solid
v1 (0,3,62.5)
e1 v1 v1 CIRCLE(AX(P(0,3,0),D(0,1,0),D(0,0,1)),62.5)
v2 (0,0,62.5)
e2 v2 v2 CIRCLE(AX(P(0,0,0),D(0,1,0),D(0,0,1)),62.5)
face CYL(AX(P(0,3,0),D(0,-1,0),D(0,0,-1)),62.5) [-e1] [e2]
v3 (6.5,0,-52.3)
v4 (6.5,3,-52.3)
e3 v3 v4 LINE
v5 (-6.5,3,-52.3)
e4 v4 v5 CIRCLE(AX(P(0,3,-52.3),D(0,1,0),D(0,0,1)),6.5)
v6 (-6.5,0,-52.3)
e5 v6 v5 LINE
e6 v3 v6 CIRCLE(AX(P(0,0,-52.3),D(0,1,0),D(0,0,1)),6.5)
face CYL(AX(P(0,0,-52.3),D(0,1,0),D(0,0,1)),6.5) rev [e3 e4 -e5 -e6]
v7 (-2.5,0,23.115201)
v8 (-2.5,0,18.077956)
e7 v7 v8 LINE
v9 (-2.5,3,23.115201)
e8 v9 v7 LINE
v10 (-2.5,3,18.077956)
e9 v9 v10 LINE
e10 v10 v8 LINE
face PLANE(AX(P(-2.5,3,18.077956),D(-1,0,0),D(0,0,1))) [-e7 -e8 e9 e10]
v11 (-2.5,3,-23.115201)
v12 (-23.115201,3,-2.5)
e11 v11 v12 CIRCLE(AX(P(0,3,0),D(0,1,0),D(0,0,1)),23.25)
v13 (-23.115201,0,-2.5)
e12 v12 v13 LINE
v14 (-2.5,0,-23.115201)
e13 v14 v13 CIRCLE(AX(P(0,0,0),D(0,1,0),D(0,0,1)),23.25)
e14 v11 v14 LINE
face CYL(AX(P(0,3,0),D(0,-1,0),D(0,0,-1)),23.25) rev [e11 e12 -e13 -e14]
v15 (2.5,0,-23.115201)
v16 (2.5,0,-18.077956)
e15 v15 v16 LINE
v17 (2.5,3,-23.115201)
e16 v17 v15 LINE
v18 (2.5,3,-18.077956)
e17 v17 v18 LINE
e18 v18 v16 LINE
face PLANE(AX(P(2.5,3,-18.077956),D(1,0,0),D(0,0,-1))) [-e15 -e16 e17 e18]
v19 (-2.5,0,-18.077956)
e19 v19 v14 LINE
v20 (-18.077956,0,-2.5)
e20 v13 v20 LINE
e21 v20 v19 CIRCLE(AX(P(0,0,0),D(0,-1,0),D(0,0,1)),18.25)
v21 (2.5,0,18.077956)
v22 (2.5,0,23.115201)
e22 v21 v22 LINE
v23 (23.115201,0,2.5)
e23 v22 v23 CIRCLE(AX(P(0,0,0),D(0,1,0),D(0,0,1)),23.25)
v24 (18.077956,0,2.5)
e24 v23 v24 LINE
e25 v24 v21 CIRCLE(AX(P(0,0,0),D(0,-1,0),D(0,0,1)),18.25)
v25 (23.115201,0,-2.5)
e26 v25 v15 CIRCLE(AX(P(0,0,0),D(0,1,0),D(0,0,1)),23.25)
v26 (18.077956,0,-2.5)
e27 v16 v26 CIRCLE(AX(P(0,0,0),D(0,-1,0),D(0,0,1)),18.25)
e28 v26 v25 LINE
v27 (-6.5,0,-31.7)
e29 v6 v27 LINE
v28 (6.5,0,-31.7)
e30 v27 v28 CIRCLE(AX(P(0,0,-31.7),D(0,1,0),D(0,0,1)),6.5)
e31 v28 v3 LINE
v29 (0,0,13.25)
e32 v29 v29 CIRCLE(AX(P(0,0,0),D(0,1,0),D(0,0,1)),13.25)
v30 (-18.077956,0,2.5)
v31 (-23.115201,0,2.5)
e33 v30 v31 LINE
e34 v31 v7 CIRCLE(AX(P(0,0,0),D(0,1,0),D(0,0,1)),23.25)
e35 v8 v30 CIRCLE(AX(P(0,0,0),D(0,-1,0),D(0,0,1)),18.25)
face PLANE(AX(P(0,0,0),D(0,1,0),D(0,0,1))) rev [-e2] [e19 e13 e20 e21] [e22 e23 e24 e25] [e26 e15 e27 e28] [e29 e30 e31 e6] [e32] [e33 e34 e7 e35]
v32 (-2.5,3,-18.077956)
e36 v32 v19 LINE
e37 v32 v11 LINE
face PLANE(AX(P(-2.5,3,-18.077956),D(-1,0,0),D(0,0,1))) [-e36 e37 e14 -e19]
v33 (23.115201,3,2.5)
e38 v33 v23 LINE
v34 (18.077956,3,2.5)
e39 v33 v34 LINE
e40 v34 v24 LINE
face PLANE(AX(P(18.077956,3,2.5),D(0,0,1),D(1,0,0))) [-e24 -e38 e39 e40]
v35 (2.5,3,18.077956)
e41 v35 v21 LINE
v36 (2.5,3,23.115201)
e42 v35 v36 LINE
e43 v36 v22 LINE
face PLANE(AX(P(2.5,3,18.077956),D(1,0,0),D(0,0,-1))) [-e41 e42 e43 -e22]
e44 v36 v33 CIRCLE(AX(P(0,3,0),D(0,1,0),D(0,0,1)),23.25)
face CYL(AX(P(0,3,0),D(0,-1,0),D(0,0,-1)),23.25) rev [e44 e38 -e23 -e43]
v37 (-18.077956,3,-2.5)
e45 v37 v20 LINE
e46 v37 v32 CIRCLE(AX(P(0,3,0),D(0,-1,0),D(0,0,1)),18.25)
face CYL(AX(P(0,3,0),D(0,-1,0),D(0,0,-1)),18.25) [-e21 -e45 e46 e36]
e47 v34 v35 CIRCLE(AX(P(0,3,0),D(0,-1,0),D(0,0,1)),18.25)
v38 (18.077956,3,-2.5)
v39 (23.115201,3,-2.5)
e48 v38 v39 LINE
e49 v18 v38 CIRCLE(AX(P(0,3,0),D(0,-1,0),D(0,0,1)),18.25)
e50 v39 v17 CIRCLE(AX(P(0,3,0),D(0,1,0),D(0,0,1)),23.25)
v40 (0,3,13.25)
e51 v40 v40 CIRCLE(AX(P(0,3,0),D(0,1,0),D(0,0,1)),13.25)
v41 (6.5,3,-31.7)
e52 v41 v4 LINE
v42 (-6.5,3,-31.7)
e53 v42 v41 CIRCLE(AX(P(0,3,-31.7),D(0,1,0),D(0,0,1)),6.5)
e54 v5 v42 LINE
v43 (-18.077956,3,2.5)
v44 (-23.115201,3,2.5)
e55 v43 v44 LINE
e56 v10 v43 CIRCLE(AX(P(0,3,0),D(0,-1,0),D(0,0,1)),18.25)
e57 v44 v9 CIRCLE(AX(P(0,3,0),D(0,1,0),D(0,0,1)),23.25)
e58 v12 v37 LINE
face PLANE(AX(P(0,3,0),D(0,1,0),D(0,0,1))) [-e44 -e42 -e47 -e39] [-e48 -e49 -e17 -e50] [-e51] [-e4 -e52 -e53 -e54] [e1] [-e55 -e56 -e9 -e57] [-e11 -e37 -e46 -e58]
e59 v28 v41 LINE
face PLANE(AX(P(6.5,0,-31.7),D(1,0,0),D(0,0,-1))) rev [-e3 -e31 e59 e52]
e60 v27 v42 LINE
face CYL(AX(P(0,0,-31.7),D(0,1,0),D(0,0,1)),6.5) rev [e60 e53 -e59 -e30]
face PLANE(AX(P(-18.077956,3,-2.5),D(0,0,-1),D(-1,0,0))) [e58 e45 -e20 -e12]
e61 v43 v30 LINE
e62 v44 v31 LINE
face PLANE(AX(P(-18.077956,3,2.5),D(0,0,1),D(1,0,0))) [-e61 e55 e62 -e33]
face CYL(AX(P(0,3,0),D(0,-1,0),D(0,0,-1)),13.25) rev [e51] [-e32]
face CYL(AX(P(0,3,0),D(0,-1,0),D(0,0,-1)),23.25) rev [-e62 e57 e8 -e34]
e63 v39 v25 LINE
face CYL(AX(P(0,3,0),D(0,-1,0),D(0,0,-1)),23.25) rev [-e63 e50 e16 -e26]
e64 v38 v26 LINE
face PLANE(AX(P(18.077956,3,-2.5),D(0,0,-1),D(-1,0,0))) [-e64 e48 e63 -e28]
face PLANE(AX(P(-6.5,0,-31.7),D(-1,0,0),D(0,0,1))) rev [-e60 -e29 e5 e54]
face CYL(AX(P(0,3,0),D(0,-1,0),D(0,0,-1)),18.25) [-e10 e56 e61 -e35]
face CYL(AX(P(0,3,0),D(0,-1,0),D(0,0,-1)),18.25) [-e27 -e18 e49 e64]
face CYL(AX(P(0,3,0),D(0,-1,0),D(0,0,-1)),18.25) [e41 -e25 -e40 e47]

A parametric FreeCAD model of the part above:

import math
import FreeCAD as App
import Part
import Sketcher

doc = App.newDocument("Part")
body = doc.addObject("PartDesign::Body", "Body")

sketch1 = body.newObject("Sketcher::SketchObject", "Sketch")
sketch1.AttachmentSupport = (doc.getObject("XZ_Plane"), [""])
sketch1.MapMode = "FlatFace"
sketch1.addGeometry([
    Part.Circle(App.Vector(0, 0, 0), App.Vector(0, 0, 1), 62.5),
    Part.LineSegment(App.Vector(-2.5, -23.115201, 0), App.Vector(-2.5, -18.077956, 0)),
    Part.ArcOfCircle(Part.Circle(App.Vector(0, 0, 0), App.Vector(0, 0, 1), 18.25), math.radians(-172.126506), math.radians(-97.873494)),
    Part.LineSegment(App.Vector(-18.077956, -2.5, 0), App.Vector(-23.115201, -2.5, 0)),
    Part.ArcOfCircle(Part.Circle(App.Vector(0, 0, 0), App.Vector(0, 0, 1), 23.25), math.radians(-173.827229), math.radians(-96.172771)),
    Part.ArcOfCircle(Part.Circle(App.Vector(0, 0, 0), App.Vector(0, 0, 1), 18.25), math.radians(97.873494), math.radians(172.126506)),
    Part.LineSegment(App.Vector(-2.5, 18.077956, 0), App.Vector(-2.5, 23.115201, 0)),
    Part.ArcOfCircle(Part.Circle(App.Vector(0, 0, 0), App.Vector(0, 0, 1), 23.25), math.radians(96.172771), math.radians(173.827229)),
    Part.LineSegment(App.Vector(-23.115201, 2.5, 0), App.Vector(-18.077956, 2.5, 0)),
    Part.ArcOfCircle(Part.Circle(App.Vector(0, 0, 0), App.Vector(0, 0, 1), 18.25), math.radians(-82.126506), math.radians(-7.873494)),
    Part.LineSegment(App.Vector(2.5, -18.077956, 0), App.Vector(2.5, -23.115201, 0)),
    Part.ArcOfCircle(Part.Circle(App.Vector(0, 0, 0), App.Vector(0, 0, 1), 23.25), math.radians(-83.827229), math.radians(-6.172771)),
    Part.LineSegment(App.Vector(23.115201, -2.5, 0), App.Vector(18.077956, -2.5, 0)),
    Part.Circle(App.Vector(0, 0, 0), App.Vector(0, 0, 1), 13.25),
    Part.ArcOfCircle(Part.Circle(App.Vector(0, 0, 0), App.Vector(0, 0, 1), 18.25), math.radians(7.873494), math.radians(82.126506)),
    Part.LineSegment(App.Vector(18.077956, 2.5, 0), App.Vector(23.115201, 2.5, 0)),
    Part.ArcOfCircle(Part.Circle(App.Vector(0, 0, 0), App.Vector(0, 0, 1), 23.25), math.radians(6.172771), math.radians(83.827229)),
    Part.LineSegment(App.Vector(2.5, 23.115201, 0), App.Vector(2.5, 18.077956, 0)),
], False)
sketch1.addConstraint([
    Sketcher.Constraint("Coincident", 1, 2, 2, 2),
    Sketcher.Constraint("Coincident", 2, 1, 3, 1),
    Sketcher.Constraint("Coincident", 3, 2, 4, 1),
    Sketcher.Constraint("Coincident", 4, 2, 1, 1),
    Sketcher.Constraint("Coincident", 5, 1, 6, 1),
    Sketcher.Constraint("Coincident", 6, 2, 7, 1),
    Sketcher.Constraint("Coincident", 7, 2, 8, 1),
    Sketcher.Constraint("Coincident", 8, 2, 5, 2),
    Sketcher.Constraint("Coincident", 9, 1, 10, 1),
    Sketcher.Constraint("Coincident", 10, 2, 11, 1),
    Sketcher.Constraint("Coincident", 11, 2, 12, 1),
    Sketcher.Constraint("Coincident", 12, 2, 9, 2),
    Sketcher.Constraint("Coincident", 14, 1, 15, 1),
    Sketcher.Constraint("Coincident", 15, 2, 16, 1),
    Sketcher.Constraint("Coincident", 16, 2, 17, 1),
    Sketcher.Constraint("Coincident", 17, 2, 14, 2),
    Sketcher.Constraint("Vertical", 1),
    Sketcher.Constraint("Horizontal", 3),
    Sketcher.Constraint("Vertical", 6),
    Sketcher.Constraint("Horizontal", 8),
    Sketcher.Constraint("Vertical", 10),
    Sketcher.Constraint("Horizontal", 12),
    Sketcher.Constraint("Horizontal", 15),
    Sketcher.Constraint("Vertical", 17),
    Sketcher.Constraint("Coincident", 0, 3, -1, 1),
    Sketcher.Constraint("Coincident", 2, 3, -1, 1),
    Sketcher.Constraint("Coincident", 4, 3, -1, 1),
    Sketcher.Constraint("Coincident", 5, 3, -1, 1),
    Sketcher.Constraint("Coincident", 7, 3, -1, 1),
    Sketcher.Constraint("Coincident", 9, 3, -1, 1),
    Sketcher.Constraint("Coincident", 11, 3, -1, 1),
    Sketcher.Constraint("Coincident", 13, 3, -1, 1),
    Sketcher.Constraint("Coincident", 14, 3, -1, 1),
    Sketcher.Constraint("Coincident", 16, 3, -1, 1),
    Sketcher.Constraint("Equal", 2, 5),
    Sketcher.Constraint("Equal", 4, 7),
    Sketcher.Constraint("Equal", 5, 9),
    Sketcher.Constraint("Equal", 7, 11),
    Sketcher.Constraint("Equal", 9, 14),
    Sketcher.Constraint("Equal", 11, 16),
    Sketcher.Constraint("Horizontal", 1, 2, 9, 1),
    Sketcher.Constraint("Horizontal", 3, 2, 11, 2),
    Sketcher.Constraint("Horizontal", 8, 2, 14, 1),
    Sketcher.Constraint("Horizontal", 6, 2, 16, 2),
    Sketcher.Constraint("Vertical", 4, 2, 5, 1),
    Sketcher.Constraint("Vertical", 3, 2, 7, 2),
    Sketcher.Constraint("Equal", 15, 1),
    Sketcher.Constraint("Diameter", 0, 125.0),
    Sketcher.Constraint("Diameter", 13, 26.5),
    Sketcher.Constraint("Radius", 2, 18.25),
    Sketcher.Constraint("Radius", 4, 23.25),
    Sketcher.Constraint("DistanceY", 3, 2, 7, 2, 5.0),
])
pad1 = body.newObject("PartDesign::Pad", "Pad")
pad1.Profile = sketch1
pad1.Length = 3
pad1.Reversed = True

sketch2 = body.newObject("Sketcher::SketchObject", "Sketch001")
sketch2.AttachmentSupport = (doc.getObject("XZ_Plane"), [""])
sketch2.MapMode = "FlatFace"
sketch2.AttachmentOffset = App.Placement(App.Vector(0, 0, -3), App.Rotation())
sketch2.addGeometry([
    Part.LineSegment(App.Vector(-6.5, -52.3, 0), App.Vector(-6.5, -31.7, 0)),
    Part.ArcOfCircle(Part.Circle(App.Vector(0, -31.7, 0), App.Vector(0, 0, 1), 6.5), math.radians(0), math.radians(180)),
    Part.LineSegment(App.Vector(6.5, -31.7, 0), App.Vector(6.5, -52.3, 0)),
    Part.ArcOfCircle(Part.Circle(App.Vector(0, -52.3, 0), App.Vector(0, 0, 1), 6.5), math.radians(180), math.radians(360)),
], False)
sketch2.addConstraint([
    Sketcher.Constraint("Tangent", 0, 2, 1, 2),
    Sketcher.Constraint("Tangent", 1, 1, 2, 1),
    Sketcher.Constraint("Tangent", 2, 2, 3, 2),
    Sketcher.Constraint("Tangent", 3, 1, 0, 1),
    Sketcher.Constraint("Vertical", 0),
    Sketcher.Constraint("Vertical", 2),
    Sketcher.Constraint("PointOnObject", 1, 3, -2),
    Sketcher.Constraint("Radius", 1, 6.5),
    Sketcher.Constraint("DistanceY", 0, 1, 0, 2, 20.6),
    Sketcher.Constraint("DistanceY", 1, 3, -1, 1, 31.7),
])
pocket1 = body.newObject("PartDesign::Pocket", "Pocket")
pocket1.Profile = sketch2
pocket1.Type = "ThroughAll"
pocket1.Reversed = True

doc.recompute()
